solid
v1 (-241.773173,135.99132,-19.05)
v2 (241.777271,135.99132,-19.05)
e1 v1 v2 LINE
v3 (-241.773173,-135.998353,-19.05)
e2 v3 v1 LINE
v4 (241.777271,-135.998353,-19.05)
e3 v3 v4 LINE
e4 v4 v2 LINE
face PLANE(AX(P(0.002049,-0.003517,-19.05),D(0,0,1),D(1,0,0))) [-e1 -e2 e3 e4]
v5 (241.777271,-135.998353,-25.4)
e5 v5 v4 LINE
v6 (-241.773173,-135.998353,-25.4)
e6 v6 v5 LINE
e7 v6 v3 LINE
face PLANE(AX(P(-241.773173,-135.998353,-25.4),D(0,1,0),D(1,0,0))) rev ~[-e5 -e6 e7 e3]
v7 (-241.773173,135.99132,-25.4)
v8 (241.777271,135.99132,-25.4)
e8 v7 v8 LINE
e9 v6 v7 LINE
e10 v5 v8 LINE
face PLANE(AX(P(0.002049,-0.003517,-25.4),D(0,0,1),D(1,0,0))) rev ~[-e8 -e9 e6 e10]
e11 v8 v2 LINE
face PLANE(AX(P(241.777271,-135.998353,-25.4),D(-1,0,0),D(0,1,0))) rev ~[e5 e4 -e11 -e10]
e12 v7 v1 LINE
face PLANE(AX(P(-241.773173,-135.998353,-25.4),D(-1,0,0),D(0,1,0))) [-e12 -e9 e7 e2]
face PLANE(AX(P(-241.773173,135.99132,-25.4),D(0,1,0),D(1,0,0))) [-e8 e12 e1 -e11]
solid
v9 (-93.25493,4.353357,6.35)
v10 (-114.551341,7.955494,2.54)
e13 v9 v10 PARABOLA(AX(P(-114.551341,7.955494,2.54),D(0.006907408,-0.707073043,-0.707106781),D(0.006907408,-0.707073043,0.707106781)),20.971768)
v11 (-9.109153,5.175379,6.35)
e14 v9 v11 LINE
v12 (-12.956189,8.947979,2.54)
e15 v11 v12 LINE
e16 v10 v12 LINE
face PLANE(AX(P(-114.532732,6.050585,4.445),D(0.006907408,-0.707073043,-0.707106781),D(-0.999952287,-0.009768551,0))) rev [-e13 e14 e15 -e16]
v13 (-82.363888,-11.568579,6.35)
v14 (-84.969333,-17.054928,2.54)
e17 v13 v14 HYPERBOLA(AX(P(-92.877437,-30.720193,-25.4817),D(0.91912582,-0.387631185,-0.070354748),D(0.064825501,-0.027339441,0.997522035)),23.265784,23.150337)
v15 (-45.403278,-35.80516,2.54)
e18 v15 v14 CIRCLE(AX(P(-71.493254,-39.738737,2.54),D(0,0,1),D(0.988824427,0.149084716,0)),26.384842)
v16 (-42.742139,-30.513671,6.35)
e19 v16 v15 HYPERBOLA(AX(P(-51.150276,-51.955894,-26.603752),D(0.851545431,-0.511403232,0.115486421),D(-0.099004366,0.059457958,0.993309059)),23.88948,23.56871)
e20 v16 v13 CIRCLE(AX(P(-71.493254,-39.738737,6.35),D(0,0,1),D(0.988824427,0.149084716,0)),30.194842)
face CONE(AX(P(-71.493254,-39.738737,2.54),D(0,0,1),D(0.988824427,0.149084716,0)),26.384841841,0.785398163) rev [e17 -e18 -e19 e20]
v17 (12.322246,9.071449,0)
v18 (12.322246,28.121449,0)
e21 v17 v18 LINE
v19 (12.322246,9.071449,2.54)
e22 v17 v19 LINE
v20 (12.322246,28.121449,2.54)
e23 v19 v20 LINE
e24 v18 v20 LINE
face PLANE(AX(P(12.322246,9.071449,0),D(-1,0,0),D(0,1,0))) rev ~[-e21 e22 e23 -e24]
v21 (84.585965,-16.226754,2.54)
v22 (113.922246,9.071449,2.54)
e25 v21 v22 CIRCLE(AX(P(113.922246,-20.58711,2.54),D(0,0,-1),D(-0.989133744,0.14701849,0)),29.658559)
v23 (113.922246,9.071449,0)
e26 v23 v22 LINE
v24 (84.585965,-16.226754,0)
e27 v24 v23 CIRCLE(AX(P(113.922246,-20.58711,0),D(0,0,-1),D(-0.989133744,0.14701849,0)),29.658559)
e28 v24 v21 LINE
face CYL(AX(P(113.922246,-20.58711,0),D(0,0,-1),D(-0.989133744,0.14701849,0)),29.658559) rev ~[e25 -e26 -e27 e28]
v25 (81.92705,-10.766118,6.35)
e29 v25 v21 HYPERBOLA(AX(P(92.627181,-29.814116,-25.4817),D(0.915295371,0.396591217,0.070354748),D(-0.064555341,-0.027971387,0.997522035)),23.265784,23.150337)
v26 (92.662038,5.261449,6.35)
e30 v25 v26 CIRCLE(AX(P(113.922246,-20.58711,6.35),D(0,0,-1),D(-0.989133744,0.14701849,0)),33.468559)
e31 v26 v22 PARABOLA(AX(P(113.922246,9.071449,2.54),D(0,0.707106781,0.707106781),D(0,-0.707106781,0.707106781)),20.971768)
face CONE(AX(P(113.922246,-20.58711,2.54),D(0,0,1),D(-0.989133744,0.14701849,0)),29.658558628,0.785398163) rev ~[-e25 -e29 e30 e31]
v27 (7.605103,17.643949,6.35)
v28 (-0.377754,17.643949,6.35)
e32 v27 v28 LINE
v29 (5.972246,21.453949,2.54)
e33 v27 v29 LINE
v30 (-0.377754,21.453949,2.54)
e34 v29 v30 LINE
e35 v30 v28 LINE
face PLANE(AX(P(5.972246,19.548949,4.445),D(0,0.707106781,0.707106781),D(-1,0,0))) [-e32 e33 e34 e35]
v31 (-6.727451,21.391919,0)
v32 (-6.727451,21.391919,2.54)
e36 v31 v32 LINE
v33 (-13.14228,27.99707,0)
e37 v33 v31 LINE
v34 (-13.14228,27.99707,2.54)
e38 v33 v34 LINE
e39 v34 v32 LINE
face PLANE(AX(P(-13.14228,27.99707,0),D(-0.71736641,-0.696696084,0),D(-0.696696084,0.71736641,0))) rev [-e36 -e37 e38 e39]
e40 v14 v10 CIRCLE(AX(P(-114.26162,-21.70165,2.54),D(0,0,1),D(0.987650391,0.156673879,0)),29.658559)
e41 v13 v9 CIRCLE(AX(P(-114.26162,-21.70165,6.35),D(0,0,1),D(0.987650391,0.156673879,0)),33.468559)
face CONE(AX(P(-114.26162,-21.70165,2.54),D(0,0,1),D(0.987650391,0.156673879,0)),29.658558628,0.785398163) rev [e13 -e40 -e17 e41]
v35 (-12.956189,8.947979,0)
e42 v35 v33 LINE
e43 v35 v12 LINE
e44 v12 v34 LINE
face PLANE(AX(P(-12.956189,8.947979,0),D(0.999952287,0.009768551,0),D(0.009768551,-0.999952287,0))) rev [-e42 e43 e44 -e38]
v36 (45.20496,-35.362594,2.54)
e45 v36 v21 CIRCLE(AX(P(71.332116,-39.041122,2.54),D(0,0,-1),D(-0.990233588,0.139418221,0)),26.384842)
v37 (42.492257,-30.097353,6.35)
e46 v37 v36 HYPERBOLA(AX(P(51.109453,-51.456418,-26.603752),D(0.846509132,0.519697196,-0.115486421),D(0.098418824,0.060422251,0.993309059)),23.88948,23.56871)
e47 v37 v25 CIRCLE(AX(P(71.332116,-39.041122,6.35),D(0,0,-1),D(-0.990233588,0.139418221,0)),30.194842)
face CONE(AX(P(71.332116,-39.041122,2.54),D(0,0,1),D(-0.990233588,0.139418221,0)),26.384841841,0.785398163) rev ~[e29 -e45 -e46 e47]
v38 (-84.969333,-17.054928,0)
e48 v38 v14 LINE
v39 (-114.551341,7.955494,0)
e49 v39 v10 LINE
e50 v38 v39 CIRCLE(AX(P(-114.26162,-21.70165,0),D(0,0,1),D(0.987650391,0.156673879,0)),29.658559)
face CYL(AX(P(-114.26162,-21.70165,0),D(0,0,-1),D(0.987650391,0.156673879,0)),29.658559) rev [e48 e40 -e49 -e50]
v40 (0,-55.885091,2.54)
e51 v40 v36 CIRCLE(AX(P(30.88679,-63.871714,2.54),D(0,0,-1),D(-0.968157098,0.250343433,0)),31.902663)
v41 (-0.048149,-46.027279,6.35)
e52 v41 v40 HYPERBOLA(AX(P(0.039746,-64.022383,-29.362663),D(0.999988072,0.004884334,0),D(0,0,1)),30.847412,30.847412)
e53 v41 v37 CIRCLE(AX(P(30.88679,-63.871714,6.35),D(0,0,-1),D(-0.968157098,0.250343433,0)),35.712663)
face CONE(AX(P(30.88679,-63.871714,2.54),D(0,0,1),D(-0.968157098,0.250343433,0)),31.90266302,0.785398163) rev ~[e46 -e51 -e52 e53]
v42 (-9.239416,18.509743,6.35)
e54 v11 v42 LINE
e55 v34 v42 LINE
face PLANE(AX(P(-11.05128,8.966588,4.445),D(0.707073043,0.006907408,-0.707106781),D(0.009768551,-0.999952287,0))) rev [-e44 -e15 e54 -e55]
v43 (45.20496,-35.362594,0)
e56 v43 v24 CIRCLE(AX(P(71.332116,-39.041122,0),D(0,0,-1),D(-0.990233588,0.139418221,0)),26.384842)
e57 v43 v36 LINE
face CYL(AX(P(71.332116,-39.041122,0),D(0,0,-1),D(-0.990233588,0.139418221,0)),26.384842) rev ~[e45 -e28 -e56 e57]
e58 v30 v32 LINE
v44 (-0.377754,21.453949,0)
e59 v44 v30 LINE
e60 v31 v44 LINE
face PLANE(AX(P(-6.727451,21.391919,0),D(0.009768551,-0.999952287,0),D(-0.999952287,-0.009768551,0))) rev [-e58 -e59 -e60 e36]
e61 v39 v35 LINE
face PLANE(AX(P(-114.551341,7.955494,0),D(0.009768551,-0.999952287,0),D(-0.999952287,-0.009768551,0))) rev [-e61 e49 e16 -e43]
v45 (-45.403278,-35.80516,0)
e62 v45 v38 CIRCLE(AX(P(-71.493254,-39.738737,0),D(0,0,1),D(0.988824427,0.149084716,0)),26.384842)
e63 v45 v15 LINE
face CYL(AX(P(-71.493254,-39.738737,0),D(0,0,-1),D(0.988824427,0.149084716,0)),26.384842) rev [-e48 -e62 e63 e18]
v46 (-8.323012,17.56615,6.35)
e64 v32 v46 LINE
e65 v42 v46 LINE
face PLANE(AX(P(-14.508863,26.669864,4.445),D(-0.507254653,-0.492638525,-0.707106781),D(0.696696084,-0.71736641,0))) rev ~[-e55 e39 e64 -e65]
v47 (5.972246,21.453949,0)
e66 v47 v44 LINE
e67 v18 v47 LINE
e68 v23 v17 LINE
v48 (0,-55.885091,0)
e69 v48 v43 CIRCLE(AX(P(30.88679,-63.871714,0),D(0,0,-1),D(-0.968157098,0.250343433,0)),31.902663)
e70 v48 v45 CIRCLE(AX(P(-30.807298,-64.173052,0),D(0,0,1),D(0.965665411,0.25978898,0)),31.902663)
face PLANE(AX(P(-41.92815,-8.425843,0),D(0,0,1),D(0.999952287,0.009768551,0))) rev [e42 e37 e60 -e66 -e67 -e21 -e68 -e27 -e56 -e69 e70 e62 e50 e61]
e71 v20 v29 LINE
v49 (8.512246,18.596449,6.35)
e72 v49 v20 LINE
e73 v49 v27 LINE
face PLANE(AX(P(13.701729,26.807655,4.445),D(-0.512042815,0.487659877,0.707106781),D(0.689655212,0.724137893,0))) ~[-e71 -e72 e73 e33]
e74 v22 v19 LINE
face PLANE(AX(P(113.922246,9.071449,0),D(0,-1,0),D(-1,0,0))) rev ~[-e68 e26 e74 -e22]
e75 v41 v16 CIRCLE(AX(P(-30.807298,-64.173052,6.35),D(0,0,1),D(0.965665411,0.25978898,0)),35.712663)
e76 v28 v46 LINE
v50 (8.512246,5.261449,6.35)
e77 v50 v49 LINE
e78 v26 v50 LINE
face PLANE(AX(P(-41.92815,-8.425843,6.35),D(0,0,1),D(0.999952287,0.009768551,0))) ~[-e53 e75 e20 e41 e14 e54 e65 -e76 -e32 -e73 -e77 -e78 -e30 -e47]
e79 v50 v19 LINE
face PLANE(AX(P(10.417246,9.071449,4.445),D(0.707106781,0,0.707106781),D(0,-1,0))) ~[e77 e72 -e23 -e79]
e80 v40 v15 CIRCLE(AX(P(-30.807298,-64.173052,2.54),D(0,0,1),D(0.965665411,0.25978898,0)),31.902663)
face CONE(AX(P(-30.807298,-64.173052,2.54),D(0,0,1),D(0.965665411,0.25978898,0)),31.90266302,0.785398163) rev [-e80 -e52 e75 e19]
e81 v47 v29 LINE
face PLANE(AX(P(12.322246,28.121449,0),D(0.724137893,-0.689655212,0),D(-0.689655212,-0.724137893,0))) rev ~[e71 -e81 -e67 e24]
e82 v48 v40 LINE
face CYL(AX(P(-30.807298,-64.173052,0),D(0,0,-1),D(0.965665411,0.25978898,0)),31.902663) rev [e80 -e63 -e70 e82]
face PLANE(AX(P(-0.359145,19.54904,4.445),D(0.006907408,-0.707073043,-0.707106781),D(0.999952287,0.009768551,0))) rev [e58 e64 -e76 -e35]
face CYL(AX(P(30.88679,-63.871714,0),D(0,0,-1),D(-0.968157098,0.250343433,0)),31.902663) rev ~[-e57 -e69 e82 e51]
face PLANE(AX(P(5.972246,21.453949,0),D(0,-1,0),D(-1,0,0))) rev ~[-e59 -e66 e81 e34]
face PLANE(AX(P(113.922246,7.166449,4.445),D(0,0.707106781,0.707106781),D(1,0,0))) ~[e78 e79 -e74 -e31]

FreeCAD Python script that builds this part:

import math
import FreeCAD as App
import Part
import Sketcher

V = App.Vector
Q = App.Units.Quantity


def edges_at(feature, points):
    """Names of the edges that pass closest to the given points."""
    edges = feature.Shape.Edges
    near = lambda p: min(range(len(edges)), key=lambda i: edges[i].distToShape(Part.Vertex(*p))[0])
    return sorted({f"Edge{near(p) + 1}" for p in points})


def add_polygon(sketch, points):
    """Adds a closed chain of lines whose ends are joined by coincident constraints."""
    first, n = sketch.GeometryCount, len(points)
    for a, b in zip(points, points[1:] + points[:1]):
        sketch.addGeometry(Part.LineSegment(App.Vector(*a, 0), App.Vector(*b, 0)), False)
    for i in range(n):
        sketch.addConstraint(Sketcher.Constraint("Coincident", first + i, 2, first + (i + 1) % n, 1))

doc = App.newDocument("Part")
body = doc.addObject("PartDesign::Body", "Body")

# Sketch on XY plane
sketch1 = doc.addObject("Sketcher::SketchObject", "Sketch")
body.addObject(sketch1)
sketch1.AttachmentSupport = (doc.XY_Plane, [""])
sketch1.MapMode = "FlatFace"
sketch1.addGeometry([
    Part.LineSegment(V(6, 21, 0), V(0, 21, 0)),  # 0
    Part.LineSegment(V(0, 21, 0), V(0, -56, 0)),  # 1
    Part.ArcOfCircle(Part.Circle(V(31, -64, 0), V(0, 0, 1), 32), math.radians(63), math.radians(166)),  # 2
    Part.ArcOfCircle(Part.Circle(V(71, -39, 0), V(0, 0, 1), 26), math.radians(60), math.radians(172)),  # 3
    Part.ArcOfCircle(Part.Circle(V(114, -21, 0), V(0, 0, 1), 30), math.radians(90), math.radians(172)),  # 4
    Part.LineSegment(V(114, 9, 0), V(12, 9, 0)),  # 5
    Part.LineSegment(V(12, 9, 0), V(12, 28, 0)),  # 6
    Part.LineSegment(V(12, 28, 0), V(6, 21, 0)),  # 7
], False)
sketch1.addConstraint([
    Sketcher.Constraint("Coincident", 0, 2, 1, 1),
    Sketcher.Constraint("Coincident", 1, 2, 2, 2),
    Sketcher.Constraint("Coincident", 2, 1, 3, 2),
    Sketcher.Constraint("Coincident", 3, 1, 4, 2),
    Sketcher.Constraint("Tangent", 4, 1, 5, 1),
    Sketcher.Constraint("Coincident", 5, 2, 6, 1),
    Sketcher.Constraint("Coincident", 6, 2, 7, 1),
    Sketcher.Constraint("Coincident", 7, 2, 0, 1),
    Sketcher.Constraint("Horizontal", 0),
    Sketcher.Constraint("Horizontal", 5),
    Sketcher.Constraint("Vertical", 6),
    Sketcher.Constraint("PointOnObject", 1, 2, -2),
    Sketcher.Constraint("DistanceX", 5, 2, 5, 1, Q("4 in")),
    Sketcher.Constraint("DistanceX", 0, 2, 0, 1, Q("0.25 in")),
    Sketcher.Constraint("DistanceY", 6, 1, 6, 2, Q("0.75 in")),
    Sketcher.Constraint("DistanceX", 0, 2, 4, 3, Q("4.5 in")),
    Sketcher.Constraint("Radius", 3, 26.384842),
    Sketcher.Constraint("Radius", 4, 29.658559),
    Sketcher.Constraint("Distance", 7, Q("0.3625 in")),
    Sketcher.Constraint("Radius", 2, 31.902663),
    Sketcher.Constraint("DistanceX", -1, 1, 2, 3, 30.88679),
    Sketcher.Constraint("DistanceY", 3, 3, -1, 1, 39.041122),
    Sketcher.Constraint("DistanceY", 4, 3, -1, 1, 20.58711),
    Sketcher.Constraint("DistanceY", 1, 2, -1, 1, 55.885091),
    Sketcher.Constraint("DistanceX", -1, 1, 2, 1, 45.20496),
    Sketcher.Constraint("DistanceX", 3, 3, 4, 3, 42.590129),
])
pad1 = doc.addObject("PartDesign::Pad", "Pad")
body.addObject(pad1)
pad1.Profile = sketch1
pad1.Length = Q("0.25 in")
body2 = doc.addObject("PartDesign::Body", "Body001")
doc.recompute()

body2.BaseFeature = body
doc.recompute()

mirroring = doc.addObject("Part::Mirroring", "Mirroring")
mirroring.Source = body
mirroring.Base = V(-0.188877, -17.215571, 3.175)
mirroring.Normal = V(-0.999988072, -0.004884334, 0)
body3 = doc.addObject("PartDesign::Body", "Body002")
body3.BaseFeature = mirroring
boolean = doc.addObject("PartDesign::Boolean", "Boolean")
body2.addObject(boolean)
boolean.Type = "Fuse"
boolean.addObjects([body3])
doc.recompute()

chamfer = doc.addObject("PartDesign::Chamfer", "Chamfer")
body2.addObject(chamfer)
chamfer.Base = (boolean, edges_at(boolean, [
    (12.322, 18.596, 6.35),
    (9.147, 24.788, 6.35),
    (2.797, 21.454, 6.35),
    (-3.553, 21.423, 6.35),
    (-9.935, 24.694, 6.35),
    (-13.049, 18.473, 6.35),
    (-63.754, 8.452, 6.35),
    (-95.113, 0.947, 6.35),
    (-60.194, -15.896, 6.35),
    (-17.904, -34.996, 6.35),
    (17.699, -34.822, 6.35),
    (59.801, -15.31, 6.35),
    (94.553, 1.873, 6.35),
    (63.122, 9.071, 6.35),
]))
chamfer.Size = Q("0.15 in")
body4 = doc.addObject("PartDesign::Body", "Body003")

# Sketch on XY plane
sketch2 = doc.addObject("Sketcher::SketchObject", "Sketch001")
body4.addObject(sketch2)
sketch2.AttachmentSupport = (doc.getObject("XY_Plane003"), [""])
sketch2.MapMode = "FlatFace"
sketch2.AttachmentOffset = App.Placement(V(0, 0, -1 * 25.4), App.Rotation())
add_polygon(sketch2, [(-242, 136), (-242, -136), (242, -136), (242, 136)])  # lines 0-3
sketch2.addConstraint([
    Sketcher.Constraint("Vertical", 0),
    Sketcher.Constraint("Horizontal", 1),
    Sketcher.Constraint("Vertical", 2),
    Sketcher.Constraint("Horizontal", 3),
    Sketcher.Constraint("DistanceX", 1, 1, 1, 2, 483.550444),
    Sketcher.Constraint("DistanceY", 0, 2, 0, 1, 271.989673),
    Sketcher.Constraint("DistanceX", -1, 1, 1, 2, 241.777271),
    Sketcher.Constraint("DistanceY", -1, 1, 2, 2, 135.99132),
])
pad2 = doc.addObject("PartDesign::Pad", "Pad001")
body4.addObject(pad2)
pad2.Profile = sketch2
pad2.Length = Q("0.25 in")
mirroring.Visibility = False

doc.recompute()
